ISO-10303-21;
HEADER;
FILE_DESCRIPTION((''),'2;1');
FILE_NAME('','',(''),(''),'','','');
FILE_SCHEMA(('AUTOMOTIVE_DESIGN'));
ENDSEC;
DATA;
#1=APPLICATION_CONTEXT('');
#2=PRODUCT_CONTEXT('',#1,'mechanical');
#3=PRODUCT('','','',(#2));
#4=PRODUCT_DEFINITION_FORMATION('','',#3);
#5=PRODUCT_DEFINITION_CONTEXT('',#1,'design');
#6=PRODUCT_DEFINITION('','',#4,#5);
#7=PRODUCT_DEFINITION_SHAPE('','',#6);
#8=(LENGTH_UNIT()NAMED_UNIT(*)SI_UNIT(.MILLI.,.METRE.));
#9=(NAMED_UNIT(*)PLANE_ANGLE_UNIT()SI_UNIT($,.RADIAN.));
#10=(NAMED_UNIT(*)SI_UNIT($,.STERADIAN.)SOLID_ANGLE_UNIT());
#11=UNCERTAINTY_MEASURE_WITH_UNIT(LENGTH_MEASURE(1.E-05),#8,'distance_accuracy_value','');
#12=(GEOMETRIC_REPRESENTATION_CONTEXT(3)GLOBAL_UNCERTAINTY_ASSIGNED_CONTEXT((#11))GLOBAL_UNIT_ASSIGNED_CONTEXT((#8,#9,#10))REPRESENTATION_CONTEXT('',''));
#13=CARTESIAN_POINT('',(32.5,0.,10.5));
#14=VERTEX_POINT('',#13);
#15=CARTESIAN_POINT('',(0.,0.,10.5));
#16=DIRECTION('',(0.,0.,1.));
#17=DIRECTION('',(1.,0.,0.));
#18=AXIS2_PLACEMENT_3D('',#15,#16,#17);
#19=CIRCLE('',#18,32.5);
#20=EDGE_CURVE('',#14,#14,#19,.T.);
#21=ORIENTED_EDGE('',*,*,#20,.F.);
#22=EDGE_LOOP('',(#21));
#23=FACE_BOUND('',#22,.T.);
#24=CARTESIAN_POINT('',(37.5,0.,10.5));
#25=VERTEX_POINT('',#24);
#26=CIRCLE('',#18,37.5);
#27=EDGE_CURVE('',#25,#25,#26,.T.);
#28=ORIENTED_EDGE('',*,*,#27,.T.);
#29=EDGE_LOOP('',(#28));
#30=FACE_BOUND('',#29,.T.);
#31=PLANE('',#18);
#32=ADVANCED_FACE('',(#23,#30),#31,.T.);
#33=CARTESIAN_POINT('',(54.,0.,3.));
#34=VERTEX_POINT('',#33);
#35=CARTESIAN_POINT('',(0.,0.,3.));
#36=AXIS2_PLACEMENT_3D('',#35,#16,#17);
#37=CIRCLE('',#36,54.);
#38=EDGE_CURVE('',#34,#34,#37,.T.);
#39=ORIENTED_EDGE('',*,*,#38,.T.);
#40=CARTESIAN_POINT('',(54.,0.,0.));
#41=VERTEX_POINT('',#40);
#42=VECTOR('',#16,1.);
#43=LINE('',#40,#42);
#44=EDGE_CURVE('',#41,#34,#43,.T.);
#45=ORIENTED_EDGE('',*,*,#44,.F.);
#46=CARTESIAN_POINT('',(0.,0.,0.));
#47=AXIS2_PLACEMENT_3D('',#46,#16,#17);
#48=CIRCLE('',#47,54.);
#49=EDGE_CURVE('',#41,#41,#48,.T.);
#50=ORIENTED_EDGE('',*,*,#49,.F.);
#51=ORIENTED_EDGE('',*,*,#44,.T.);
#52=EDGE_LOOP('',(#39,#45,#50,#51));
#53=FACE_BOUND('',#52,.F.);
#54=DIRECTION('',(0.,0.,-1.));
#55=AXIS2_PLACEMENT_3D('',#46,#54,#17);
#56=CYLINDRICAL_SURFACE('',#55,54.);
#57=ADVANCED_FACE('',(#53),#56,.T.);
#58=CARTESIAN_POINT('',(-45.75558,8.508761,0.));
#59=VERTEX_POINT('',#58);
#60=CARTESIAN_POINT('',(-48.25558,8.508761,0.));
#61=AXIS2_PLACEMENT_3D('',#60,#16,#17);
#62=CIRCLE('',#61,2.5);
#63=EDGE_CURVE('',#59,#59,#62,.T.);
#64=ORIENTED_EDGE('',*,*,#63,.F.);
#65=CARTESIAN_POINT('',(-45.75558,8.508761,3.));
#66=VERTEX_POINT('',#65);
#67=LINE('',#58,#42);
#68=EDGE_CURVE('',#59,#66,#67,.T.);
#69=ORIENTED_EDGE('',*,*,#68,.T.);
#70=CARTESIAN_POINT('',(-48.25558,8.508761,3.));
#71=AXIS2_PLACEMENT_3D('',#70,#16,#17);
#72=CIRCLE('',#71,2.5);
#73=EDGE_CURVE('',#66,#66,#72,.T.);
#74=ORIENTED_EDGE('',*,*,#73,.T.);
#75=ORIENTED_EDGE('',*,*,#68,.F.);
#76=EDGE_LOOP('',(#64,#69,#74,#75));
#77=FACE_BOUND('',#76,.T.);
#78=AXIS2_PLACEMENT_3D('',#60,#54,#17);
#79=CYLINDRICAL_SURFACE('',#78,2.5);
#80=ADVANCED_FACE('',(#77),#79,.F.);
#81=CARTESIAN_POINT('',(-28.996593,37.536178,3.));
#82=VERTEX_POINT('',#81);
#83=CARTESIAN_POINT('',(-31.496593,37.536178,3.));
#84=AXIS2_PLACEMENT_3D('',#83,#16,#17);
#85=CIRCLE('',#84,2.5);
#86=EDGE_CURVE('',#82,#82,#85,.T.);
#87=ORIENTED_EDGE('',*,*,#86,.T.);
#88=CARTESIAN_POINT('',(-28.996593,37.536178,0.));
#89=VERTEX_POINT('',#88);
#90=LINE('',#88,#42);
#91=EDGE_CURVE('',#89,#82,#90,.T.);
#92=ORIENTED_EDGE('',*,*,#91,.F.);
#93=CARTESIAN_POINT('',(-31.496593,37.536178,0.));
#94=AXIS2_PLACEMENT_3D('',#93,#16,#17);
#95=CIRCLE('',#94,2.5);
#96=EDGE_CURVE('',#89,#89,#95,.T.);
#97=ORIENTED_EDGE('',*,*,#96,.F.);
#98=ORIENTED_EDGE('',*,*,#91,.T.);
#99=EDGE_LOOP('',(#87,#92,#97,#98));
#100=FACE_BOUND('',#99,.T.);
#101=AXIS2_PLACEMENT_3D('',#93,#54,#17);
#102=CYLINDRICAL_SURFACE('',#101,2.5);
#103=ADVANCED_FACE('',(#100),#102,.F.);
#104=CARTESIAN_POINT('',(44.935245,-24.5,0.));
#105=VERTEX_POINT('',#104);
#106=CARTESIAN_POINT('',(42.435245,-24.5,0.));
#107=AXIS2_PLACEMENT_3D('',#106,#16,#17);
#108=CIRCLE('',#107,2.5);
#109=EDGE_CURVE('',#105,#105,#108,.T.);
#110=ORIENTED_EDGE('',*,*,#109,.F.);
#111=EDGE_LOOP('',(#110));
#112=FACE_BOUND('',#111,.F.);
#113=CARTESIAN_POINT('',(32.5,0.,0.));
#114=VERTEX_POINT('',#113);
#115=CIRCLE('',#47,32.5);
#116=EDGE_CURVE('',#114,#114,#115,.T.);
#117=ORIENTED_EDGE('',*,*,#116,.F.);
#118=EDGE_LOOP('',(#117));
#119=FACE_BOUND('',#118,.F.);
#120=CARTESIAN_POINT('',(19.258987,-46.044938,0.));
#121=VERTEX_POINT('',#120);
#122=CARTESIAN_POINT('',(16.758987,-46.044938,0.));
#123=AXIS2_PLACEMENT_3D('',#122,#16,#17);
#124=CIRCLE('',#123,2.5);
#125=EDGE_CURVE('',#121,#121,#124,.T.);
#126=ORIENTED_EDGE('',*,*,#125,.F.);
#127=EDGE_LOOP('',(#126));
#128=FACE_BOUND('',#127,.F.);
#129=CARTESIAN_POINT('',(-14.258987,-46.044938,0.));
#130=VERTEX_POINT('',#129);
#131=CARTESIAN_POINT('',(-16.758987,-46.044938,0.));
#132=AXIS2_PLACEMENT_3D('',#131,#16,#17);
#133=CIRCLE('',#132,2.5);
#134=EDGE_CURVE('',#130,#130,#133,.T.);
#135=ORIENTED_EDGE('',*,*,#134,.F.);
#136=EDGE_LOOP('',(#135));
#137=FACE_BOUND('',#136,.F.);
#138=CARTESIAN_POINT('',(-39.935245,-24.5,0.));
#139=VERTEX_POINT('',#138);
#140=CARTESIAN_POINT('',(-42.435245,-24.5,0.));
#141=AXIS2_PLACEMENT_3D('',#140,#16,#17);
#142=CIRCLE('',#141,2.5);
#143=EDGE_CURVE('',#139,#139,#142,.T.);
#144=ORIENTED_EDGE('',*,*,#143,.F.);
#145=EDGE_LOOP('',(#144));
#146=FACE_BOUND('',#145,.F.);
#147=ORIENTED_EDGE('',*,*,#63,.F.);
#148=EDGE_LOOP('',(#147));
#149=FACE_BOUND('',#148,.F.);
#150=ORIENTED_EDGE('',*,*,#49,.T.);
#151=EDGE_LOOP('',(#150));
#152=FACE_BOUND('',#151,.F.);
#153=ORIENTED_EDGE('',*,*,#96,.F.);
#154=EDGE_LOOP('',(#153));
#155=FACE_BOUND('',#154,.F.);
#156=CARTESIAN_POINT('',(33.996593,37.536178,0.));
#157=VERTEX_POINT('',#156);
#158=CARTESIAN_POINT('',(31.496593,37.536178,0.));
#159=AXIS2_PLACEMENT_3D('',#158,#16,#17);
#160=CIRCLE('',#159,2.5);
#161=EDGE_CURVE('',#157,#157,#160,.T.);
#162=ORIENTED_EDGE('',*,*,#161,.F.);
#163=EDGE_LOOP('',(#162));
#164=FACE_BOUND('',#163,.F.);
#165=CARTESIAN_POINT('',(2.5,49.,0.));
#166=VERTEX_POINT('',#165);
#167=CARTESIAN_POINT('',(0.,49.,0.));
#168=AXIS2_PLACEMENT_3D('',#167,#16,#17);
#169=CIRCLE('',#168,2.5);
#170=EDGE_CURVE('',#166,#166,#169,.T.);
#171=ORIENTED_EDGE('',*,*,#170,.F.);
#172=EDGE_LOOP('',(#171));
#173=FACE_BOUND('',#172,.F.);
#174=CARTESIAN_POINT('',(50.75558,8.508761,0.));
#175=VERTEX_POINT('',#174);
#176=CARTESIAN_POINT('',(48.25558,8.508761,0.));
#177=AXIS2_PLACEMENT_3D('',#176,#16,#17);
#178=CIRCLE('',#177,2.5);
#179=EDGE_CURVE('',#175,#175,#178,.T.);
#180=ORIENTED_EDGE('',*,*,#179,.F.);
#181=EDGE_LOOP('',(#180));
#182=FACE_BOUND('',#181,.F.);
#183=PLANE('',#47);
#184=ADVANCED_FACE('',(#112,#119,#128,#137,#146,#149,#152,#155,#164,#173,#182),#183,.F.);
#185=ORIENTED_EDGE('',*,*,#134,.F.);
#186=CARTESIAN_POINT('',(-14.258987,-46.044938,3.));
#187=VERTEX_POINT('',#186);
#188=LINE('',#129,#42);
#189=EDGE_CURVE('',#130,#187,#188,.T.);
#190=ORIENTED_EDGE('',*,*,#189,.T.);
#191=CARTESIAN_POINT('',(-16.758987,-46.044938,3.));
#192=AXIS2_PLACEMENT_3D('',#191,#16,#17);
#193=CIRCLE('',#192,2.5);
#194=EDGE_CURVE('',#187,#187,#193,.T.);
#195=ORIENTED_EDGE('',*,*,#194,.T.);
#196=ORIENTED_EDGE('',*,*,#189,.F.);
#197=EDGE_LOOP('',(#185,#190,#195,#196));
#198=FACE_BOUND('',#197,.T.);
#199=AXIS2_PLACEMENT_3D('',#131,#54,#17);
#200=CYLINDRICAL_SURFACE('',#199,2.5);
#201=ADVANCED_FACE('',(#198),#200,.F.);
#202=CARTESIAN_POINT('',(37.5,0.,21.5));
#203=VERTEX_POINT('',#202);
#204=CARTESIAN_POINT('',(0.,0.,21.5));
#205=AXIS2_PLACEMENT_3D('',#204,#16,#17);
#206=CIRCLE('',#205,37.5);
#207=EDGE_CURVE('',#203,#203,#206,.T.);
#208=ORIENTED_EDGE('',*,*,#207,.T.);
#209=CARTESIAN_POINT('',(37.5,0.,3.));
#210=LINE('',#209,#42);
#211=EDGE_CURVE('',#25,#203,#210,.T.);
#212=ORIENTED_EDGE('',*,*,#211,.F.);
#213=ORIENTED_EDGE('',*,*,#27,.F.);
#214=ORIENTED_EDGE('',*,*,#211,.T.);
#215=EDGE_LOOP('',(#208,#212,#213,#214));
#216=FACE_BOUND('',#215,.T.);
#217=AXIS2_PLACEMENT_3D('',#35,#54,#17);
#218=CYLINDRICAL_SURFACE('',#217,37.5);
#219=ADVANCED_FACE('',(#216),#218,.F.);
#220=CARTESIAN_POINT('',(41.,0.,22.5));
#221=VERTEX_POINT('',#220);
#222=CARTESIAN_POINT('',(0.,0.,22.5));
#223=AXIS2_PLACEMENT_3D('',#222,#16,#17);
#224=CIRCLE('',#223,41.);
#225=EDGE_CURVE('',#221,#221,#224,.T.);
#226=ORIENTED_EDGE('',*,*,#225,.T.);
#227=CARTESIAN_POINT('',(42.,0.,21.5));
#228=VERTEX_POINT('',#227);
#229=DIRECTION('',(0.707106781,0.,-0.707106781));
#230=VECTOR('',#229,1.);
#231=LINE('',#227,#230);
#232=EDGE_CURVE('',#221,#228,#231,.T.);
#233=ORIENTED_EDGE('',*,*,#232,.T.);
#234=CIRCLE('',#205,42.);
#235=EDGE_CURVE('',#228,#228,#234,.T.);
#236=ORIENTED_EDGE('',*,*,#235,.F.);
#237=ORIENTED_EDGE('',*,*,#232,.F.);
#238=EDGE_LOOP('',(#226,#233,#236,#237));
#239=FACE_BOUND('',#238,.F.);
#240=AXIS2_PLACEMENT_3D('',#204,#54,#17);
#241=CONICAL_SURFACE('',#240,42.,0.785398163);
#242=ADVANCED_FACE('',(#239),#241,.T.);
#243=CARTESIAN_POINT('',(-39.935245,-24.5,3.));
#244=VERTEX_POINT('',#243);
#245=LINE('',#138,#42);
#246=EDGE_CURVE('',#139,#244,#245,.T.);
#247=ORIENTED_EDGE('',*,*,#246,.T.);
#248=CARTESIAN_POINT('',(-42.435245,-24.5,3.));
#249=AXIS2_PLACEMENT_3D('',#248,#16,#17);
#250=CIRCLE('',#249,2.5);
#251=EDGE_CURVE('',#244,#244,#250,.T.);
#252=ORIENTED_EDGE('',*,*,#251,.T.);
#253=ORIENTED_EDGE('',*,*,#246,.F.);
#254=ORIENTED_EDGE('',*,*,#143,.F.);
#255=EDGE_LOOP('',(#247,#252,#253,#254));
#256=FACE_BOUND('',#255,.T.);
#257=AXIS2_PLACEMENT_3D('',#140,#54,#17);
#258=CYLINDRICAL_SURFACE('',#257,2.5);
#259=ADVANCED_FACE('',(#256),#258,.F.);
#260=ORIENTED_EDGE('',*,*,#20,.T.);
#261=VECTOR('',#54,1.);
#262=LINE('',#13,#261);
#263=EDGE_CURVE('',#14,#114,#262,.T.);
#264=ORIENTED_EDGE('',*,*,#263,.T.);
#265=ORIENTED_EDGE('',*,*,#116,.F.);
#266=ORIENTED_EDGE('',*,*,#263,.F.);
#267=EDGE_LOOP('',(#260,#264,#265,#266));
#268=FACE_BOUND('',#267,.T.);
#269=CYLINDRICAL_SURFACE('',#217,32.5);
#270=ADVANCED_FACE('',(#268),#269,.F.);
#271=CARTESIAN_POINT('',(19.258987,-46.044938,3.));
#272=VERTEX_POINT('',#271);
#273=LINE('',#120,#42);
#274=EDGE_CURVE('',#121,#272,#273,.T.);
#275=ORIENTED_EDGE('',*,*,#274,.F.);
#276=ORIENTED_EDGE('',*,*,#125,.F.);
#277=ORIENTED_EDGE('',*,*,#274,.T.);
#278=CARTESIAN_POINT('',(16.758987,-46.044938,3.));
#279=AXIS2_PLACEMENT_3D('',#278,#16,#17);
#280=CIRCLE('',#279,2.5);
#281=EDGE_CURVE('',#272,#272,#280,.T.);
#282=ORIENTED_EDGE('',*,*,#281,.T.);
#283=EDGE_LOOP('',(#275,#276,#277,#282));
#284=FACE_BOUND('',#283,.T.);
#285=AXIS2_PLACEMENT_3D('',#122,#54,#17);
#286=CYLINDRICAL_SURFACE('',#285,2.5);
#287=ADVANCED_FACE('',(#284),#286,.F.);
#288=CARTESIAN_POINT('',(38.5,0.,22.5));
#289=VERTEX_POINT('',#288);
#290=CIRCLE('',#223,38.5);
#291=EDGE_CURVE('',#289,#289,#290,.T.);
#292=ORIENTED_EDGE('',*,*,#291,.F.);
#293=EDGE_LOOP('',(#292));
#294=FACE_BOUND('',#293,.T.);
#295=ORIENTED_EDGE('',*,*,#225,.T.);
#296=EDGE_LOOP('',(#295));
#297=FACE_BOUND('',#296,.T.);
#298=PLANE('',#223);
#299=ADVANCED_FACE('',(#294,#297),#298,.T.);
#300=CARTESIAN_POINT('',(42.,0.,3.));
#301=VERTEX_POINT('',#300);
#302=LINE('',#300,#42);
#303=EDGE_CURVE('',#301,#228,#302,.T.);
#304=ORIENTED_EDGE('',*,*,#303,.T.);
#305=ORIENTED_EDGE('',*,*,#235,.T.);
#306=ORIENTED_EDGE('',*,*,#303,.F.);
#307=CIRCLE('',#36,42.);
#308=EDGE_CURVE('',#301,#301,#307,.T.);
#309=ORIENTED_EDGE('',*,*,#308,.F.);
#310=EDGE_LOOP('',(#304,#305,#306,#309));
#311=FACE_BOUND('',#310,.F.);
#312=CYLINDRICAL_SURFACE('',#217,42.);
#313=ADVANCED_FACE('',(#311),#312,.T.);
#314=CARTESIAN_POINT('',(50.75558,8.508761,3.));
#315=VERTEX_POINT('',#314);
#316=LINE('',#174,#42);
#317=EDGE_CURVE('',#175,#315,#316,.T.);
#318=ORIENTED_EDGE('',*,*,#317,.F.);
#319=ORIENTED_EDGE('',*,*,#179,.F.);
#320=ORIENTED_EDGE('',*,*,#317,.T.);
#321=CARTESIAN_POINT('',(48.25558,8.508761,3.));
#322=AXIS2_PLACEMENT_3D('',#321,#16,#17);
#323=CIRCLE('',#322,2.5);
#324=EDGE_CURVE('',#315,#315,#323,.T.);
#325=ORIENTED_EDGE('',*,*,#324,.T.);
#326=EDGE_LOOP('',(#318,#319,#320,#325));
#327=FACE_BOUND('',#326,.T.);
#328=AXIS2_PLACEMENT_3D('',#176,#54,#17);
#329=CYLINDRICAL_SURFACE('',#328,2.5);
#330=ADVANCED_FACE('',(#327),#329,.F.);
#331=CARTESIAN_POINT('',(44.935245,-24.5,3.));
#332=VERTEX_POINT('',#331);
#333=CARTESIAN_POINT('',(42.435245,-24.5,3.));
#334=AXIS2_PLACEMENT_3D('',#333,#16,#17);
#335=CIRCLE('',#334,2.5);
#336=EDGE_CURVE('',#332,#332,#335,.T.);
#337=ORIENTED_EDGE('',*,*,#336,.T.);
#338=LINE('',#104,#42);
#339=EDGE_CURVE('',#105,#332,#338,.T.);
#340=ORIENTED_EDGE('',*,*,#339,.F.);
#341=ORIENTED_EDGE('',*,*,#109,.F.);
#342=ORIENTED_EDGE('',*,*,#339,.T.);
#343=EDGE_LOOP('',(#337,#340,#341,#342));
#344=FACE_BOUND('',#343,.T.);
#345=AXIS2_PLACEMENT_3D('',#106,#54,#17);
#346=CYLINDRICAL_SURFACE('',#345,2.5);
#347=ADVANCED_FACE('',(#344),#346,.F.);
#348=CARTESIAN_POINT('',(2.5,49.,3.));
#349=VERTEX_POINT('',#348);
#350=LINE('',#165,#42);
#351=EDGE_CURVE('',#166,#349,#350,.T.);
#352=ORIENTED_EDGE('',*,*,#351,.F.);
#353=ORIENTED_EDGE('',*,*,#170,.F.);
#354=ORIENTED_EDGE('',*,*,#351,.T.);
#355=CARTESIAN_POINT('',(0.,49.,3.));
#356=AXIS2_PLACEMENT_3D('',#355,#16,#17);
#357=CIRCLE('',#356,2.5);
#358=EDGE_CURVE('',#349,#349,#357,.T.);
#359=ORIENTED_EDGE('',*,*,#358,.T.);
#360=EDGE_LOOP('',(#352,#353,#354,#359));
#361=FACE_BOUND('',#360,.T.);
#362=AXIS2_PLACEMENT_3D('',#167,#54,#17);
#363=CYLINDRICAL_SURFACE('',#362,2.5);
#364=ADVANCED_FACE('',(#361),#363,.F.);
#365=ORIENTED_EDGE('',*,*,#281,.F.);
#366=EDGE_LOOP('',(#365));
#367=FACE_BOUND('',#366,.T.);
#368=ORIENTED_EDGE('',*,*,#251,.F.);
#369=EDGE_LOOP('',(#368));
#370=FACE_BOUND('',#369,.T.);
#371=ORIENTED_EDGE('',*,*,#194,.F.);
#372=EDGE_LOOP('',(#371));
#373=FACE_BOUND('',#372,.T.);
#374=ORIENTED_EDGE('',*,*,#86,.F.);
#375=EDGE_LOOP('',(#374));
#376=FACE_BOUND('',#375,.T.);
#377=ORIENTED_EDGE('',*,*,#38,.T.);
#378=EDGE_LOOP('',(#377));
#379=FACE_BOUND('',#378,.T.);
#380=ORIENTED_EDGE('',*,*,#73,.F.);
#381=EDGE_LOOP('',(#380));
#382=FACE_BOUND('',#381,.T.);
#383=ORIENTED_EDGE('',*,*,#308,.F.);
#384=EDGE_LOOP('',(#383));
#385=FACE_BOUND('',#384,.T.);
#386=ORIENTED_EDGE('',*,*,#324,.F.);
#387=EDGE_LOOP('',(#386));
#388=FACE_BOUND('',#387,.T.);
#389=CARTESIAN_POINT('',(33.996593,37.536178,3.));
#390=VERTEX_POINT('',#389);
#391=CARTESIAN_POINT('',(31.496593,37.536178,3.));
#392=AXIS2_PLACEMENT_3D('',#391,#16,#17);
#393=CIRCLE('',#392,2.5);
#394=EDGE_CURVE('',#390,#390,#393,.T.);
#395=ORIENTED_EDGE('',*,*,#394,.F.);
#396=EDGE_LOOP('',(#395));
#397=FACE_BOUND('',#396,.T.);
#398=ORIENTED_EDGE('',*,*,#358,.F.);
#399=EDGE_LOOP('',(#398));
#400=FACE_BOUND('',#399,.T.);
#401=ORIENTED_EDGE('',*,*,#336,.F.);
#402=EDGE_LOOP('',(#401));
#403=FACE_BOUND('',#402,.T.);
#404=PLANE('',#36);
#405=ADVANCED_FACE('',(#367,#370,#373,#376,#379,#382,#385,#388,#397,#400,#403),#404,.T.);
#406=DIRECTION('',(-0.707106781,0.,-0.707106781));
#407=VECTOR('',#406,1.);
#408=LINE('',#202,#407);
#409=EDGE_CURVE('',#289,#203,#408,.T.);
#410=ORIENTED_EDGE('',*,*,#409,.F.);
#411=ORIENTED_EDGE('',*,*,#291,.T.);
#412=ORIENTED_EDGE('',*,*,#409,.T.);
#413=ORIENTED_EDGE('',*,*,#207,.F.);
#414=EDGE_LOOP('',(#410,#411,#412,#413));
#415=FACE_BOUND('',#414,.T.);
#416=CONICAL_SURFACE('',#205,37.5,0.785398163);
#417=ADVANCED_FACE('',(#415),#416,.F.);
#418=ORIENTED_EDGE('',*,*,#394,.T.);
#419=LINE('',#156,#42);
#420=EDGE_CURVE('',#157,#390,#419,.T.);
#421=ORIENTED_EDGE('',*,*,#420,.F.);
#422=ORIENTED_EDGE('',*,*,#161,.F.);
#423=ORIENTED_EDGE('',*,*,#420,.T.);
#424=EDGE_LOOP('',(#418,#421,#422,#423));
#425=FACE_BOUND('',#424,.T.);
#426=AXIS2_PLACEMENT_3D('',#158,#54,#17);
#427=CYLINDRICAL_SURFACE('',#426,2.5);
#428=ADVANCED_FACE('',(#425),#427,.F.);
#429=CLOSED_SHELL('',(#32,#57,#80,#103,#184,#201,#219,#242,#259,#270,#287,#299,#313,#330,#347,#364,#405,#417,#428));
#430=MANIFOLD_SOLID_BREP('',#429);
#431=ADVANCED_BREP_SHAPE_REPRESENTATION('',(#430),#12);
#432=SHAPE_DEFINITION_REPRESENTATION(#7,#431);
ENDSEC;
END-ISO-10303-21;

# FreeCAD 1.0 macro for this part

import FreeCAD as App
import Part
import Sketcher

V = App.Vector
Q = App.Units.Quantity


def edges_at(feature, points):
    """Names of the edges that pass closest to the given points."""
    edges = feature.Shape.Edges
    near = lambda p: min(range(len(edges)), key=lambda i: edges[i].distToShape(Part.Vertex(*p))[0])
    return sorted({f"Edge{near(p) + 1}" for p in points})

doc = App.newDocument("Part")
body = doc.addObject("PartDesign::Body", "Body")

# Sketch on XY plane
sketch1 = doc.addObject("Sketcher::SketchObject", "Sketch")
body.addObject(sketch1)
sketch1.AttachmentSupport = (doc.XY_Plane, [""])
sketch1.MapMode = "FlatFace"
sketch1.addGeometry([
    Part.Circle(V(0, 0, 0), V(0, 0, 1), 54),  # 0
    Part.Circle(V(-42.4, -24.5, 0), V(0, 0, 1), 2.5),  # 1
    Part.Circle(V(-16.8, -46, 0), V(0, 0, 1), 2.5),  # 2
    Part.Circle(V(16.8, -46, 0), V(0, 0, 1), 2.5),  # 3
    Part.Circle(V(42.4, -24.5, 0), V(0, 0, 1), 2.5),  # 4
    Part.Circle(V(0, 0, 0), V(0, 0, 1), 32.5),  # 5
    Part.Circle(V(-48.3, 8.5, 0), V(0, 0, 1), 2.5),  # 6
    Part.Circle(V(-31.5, 37.5, 0), V(0, 0, 1), 2.5),  # 7
    Part.Circle(V(48.3, 8.5, 0), V(0, 0, 1), 2.5),  # 8
    Part.Circle(V(0, 49, 0), V(0, 0, 1), 2.5),  # 9
    Part.Circle(V(31.5, 37.5, 0), V(0, 0, 1), 2.5),  # 10
], False)
sketch1.addConstraint([
    Sketcher.Constraint("Coincident", 0, 3, -1, 1),
    Sketcher.Constraint("Coincident", 5, 3, -1, 1),
    Sketcher.Constraint("Equal", 1, 2),
    Sketcher.Constraint("Equal", 2, 3),
    Sketcher.Constraint("Equal", 3, 4),
    Sketcher.Constraint("Equal", 4, 6),
    Sketcher.Constraint("Equal", 6, 7),
    Sketcher.Constraint("Equal", 7, 8),
    Sketcher.Constraint("Equal", 8, 9),
    Sketcher.Constraint("Equal", 9, 10),
    Sketcher.Constraint("Symmetric", 2, 3, 3, 3, -2),
    Sketcher.Constraint("Symmetric", 1, 3, 4, 3, -2),
    Sketcher.Constraint("Symmetric", 6, 3, 8, 3, -2),
    Sketcher.Constraint("Symmetric", 7, 3, 10, 3, -2),
    Sketcher.Constraint("PointOnObject", 9, 3, -2),
    Sketcher.Constraint("Diameter", 0, Q("108 mm")),
    Sketcher.Constraint("Diameter", 1, Q("5 mm")),
    Sketcher.Constraint("Diameter", 5, Q("65 mm")),
    Sketcher.Constraint("DistanceY", -1, 1, 9, 3, Q("49 mm")),
    Sketcher.Constraint("DistanceY", 1, 3, -1, 1, Q("24.5 mm")),
    Sketcher.Constraint("DistanceY", 2, 3, 6, 3, Q("54.553699 mm")),
    Sketcher.Constraint("DistanceY", 2, 3, -1, 1, Q("46.044938 mm")),
    Sketcher.Constraint("DistanceX", 6, 3, -1, 1, Q("48.25558 mm")),
    Sketcher.Constraint("DistanceX", 1, 3, 2, 3, Q("25.676258 mm")),
    Sketcher.Constraint("DistanceX", 1, 3, 4, 3, Q("84.87049 mm")),
    Sketcher.Constraint("DistanceX", 7, 3, -1, 1, Q("31.496593 mm")),
    Sketcher.Constraint("DistanceY", -1, 1, 7, 3, Q("37.536178 mm")),
])
pad1 = doc.addObject("PartDesign::Pad", "Pad")
body.addObject(pad1)
pad1.Profile = sketch1
pad1.Length = 3

# Sketch on XY plane
sketch2 = doc.addObject("Sketcher::SketchObject", "Sketch001")
body.addObject(sketch2)
sketch2.AttachmentSupport = (doc.XY_Plane, [""])
sketch2.MapMode = "FlatFace"
sketch2.AttachmentOffset = App.Placement(V(0, 0, 3), App.Rotation())
sketch2.addGeometry([
    Part.Circle(V(0, 0, 0), V(0, 0, 1), 42),
    Part.Circle(V(0, 0, 0), V(0, 0, 1), 38),
], False)
sketch2.addConstraint([
    Sketcher.Constraint("Coincident", 0, 3, -1, 1),
    Sketcher.Constraint("Coincident", 1, 3, -1, 1),
    Sketcher.Constraint("Diameter", 0, Q("84 mm")),
    Sketcher.Constraint("Diameter", 1, Q("75 mm")),
])
pad2 = doc.addObject("PartDesign::Pad", "Pad001")
body.addObject(pad2)
pad2.Profile = sketch2
pad2.Length = 19.5

# Sketch on XY plane
sketch3 = doc.addObject("Sketcher::SketchObject", "Sketch002")
body.addObject(sketch3)
sketch3.AttachmentSupport = (doc.XY_Plane, [""])
sketch3.MapMode = "FlatFace"
sketch3.AttachmentOffset = App.Placement(V(0, 0, 3), App.Rotation())
sketch3.addGeometry([
    Part.Circle(V(0, 0, 0), V(0, 0, 1), 38),
    Part.Circle(V(0, 0, 0), V(0, 0, 1), 32),
], False)
sketch3.addConstraint([
    Sketcher.Constraint("Coincident", 0, 3, -1, 1),
    Sketcher.Constraint("Coincident", 1, 3, -1, 1),
    Sketcher.Constraint("Diameter", 0, Q("75 mm")),
    Sketcher.Constraint("Diameter", 1, Q("65 mm")),
])
pad3 = doc.addObject("PartDesign::Pad", "Pad002")
body.addObject(pad3)
pad3.Profile = sketch3
pad3.Length = 7.5
doc.recompute()

chamfer = doc.addObject("PartDesign::Chamfer", "Chamfer")
body.addObject(chamfer)
chamfer.Base = (pad3, edges_at(pad3, [(-37.5, 0, 22.5)]))
chamfer.Size = 1
doc.recompute()

chamfer2 = doc.addObject("PartDesign::Chamfer", "Chamfer001")
body.addObject(chamfer2)
chamfer2.Base = (chamfer, edges_at(chamfer, [(-42, 0, 22.5)]))
chamfer2.Size = 1

doc.recompute()
